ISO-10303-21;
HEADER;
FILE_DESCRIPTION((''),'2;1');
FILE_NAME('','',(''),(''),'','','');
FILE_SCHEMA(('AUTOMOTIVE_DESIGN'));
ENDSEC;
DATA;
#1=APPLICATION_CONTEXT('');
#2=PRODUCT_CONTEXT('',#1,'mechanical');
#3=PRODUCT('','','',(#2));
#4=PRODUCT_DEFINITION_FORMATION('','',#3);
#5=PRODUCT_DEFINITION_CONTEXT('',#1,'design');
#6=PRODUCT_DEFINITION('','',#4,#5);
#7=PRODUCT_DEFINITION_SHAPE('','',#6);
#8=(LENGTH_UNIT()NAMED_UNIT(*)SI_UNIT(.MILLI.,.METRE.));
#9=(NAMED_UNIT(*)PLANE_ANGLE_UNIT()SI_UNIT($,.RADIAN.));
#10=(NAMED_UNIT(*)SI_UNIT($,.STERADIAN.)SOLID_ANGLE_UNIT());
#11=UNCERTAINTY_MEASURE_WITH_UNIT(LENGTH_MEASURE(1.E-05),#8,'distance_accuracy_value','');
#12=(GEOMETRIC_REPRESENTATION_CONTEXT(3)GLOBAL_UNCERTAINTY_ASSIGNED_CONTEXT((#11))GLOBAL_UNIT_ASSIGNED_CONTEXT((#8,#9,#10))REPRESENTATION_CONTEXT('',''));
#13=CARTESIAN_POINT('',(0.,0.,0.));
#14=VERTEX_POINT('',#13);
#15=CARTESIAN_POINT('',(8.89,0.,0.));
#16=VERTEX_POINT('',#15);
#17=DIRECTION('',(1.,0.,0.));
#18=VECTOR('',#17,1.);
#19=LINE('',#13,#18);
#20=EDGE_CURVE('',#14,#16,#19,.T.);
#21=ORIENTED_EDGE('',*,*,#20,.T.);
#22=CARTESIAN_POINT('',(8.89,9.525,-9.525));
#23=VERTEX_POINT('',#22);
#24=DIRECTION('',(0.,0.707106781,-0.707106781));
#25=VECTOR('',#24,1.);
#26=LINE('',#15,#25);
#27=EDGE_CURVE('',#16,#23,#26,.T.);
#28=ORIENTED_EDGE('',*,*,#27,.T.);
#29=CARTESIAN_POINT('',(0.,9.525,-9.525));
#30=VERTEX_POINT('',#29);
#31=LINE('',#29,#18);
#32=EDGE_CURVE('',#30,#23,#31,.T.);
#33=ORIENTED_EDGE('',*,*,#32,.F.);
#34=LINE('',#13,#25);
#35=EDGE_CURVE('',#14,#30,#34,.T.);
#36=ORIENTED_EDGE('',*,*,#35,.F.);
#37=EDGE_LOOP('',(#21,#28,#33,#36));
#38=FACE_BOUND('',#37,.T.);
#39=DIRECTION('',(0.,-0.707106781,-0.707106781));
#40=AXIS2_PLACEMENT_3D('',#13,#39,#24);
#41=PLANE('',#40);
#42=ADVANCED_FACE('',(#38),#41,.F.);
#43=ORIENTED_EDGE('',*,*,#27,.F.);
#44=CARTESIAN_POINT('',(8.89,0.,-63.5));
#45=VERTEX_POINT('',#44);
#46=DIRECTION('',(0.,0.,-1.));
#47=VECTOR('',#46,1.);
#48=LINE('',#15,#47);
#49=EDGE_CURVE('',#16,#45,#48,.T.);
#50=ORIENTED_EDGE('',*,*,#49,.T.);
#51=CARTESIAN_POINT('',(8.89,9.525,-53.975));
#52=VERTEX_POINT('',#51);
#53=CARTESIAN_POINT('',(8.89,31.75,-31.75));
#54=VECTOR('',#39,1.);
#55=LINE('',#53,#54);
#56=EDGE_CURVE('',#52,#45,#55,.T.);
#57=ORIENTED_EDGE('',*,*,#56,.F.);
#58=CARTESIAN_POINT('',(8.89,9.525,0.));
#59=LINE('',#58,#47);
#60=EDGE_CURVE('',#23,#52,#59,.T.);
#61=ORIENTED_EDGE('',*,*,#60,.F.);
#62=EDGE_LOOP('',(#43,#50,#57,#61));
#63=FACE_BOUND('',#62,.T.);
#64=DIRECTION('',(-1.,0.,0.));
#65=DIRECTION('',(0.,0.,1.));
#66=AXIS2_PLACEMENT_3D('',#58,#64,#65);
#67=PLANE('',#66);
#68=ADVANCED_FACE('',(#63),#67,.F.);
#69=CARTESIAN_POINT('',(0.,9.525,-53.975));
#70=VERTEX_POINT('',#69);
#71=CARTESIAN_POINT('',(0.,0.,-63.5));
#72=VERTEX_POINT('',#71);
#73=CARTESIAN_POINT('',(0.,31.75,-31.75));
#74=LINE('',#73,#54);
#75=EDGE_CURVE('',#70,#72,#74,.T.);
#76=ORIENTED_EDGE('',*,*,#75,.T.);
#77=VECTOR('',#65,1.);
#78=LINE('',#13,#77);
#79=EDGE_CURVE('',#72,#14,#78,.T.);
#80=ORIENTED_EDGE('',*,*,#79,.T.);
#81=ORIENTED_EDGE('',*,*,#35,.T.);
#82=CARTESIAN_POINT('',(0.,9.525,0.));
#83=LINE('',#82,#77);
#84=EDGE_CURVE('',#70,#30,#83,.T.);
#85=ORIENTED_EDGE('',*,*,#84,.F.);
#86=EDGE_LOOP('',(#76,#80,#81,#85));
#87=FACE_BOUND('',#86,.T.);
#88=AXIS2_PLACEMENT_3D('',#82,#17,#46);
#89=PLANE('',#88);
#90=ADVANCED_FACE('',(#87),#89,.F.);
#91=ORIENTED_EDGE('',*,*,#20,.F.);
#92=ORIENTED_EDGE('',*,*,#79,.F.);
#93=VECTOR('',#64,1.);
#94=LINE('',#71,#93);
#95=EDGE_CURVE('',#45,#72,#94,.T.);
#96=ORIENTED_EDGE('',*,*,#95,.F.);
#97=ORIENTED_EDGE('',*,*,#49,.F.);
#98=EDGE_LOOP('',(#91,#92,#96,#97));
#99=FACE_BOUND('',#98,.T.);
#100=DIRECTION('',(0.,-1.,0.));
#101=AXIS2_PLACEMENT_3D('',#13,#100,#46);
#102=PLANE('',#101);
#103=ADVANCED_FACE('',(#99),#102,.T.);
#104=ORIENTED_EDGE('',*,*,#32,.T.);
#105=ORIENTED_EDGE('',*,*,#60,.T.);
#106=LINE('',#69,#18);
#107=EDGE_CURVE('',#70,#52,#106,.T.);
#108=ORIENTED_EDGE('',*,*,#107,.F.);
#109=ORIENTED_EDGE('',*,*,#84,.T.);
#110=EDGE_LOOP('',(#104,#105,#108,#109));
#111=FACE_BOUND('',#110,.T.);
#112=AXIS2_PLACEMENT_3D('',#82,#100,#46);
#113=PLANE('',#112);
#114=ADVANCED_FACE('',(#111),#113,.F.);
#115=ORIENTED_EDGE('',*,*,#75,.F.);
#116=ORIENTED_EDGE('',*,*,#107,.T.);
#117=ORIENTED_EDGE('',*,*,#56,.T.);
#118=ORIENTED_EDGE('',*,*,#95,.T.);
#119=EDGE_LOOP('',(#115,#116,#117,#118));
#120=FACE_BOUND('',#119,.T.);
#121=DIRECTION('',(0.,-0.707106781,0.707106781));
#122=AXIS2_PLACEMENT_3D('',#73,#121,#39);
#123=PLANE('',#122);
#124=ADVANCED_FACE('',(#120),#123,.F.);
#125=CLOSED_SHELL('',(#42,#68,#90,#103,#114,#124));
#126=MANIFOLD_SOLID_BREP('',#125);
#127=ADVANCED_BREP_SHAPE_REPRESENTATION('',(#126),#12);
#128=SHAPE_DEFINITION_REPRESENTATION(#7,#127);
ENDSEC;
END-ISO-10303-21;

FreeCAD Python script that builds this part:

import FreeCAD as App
import Part
import Sketcher

V = App.Vector
Q = App.Units.Quantity


def add_polygon(sketch, points):
    """Adds a closed chain of lines whose ends are joined by coincident constraints."""
    first, n = sketch.GeometryCount, len(points)
    for a, b in zip(points, points[1:] + points[:1]):
        sketch.addGeometry(Part.LineSegment(App.Vector(*a, 0), App.Vector(*b, 0)), False)
    for i in range(n):
        sketch.addConstraint(Sketcher.Constraint("Coincident", first + i, 2, first + (i + 1) % n, 1))

doc = App.newDocument("Part")
body = doc.addObject("PartDesign::Body", "Body")

sketch1 = doc.addObject("Sketcher::SketchObject", "Sketch")
body.addObject(sketch1)
sketch1.AttachmentSupport = (doc.XZ_Plane, [""])
sketch1.MapMode = "FlatFace"
add_polygon(sketch1, [(0, -63.5), (0, 0), (8.89, 0), (8.89, -63.5)])
sketch1.addConstraint(Sketcher.Constraint("Vertical", 0))
sketch1.addConstraint(Sketcher.Constraint("Horizontal", 1))
sketch1.addConstraint(Sketcher.Constraint("Vertical", 2))
sketch1.addConstraint(Sketcher.Constraint("Horizontal", 3))
sketch1.addConstraint(Sketcher.Constraint("Coincident", 0, 2, -1, 1))
sketch1.addConstraint(Sketcher.Constraint("DistanceY", 0, 1, 0, 2, Q("2.5 in")))
sketch1.addConstraint(Sketcher.Constraint("DistanceX", 1, 1, 1, 2, Q("0.35 in")))
pad1 = doc.addObject("PartDesign::Pad", "Pad")
body.addObject(pad1)
pad1.Profile = sketch1
pad1.Length = Q("0.375 in")
pad1.Reversed = True

sketch2 = doc.addObject("Sketcher::SketchObject", "Sketch001")
body.addObject(sketch2)
sketch2.AttachmentSupport = (doc.YZ_Plane, [""])
sketch2.MapMode = "FlatFace"
sketch2.AttachmentOffset = App.Placement(V(0, 0, 0.35 * 25.4), App.Rotation())
add_polygon(sketch2, [(9.525, 0), (0, 0), (9.525, -9.525)])
add_polygon(sketch2, [(9.525, -63.5), (9.525, -53.975), (0, -63.5)])
sketch2.addConstraint(Sketcher.Constraint("Horizontal", 0))
sketch2.addConstraint(Sketcher.Constraint("Vertical", 2))
sketch2.addConstraint(Sketcher.Constraint("Vertical", 3))
sketch2.addConstraint(Sketcher.Constraint("Horizontal", 5))
sketch2.addConstraint(Sketcher.Constraint("Coincident", 0, 2, -1, 1))
sketch2.addConstraint(Sketcher.Constraint("PointOnObject", 4, 2, -2))
sketch2.addConstraint(Sketcher.Constraint("Perpendicular", 1, 4))
sketch2.addConstraint(Sketcher.Constraint("Vertical", 2, 2, 3, 2))
sketch2.addConstraint(Sketcher.Constraint("Equal", 5, 2))
sketch2.addConstraint(Sketcher.Constraint("DistanceY", 4, 2, -1, 1, Q("2.5 in")))
sketch2.addConstraint(Sketcher.Constraint("DistanceX", 0, 2, 0, 1, Q("0.375 in")))
pocket1 = doc.addObject("PartDesign::Pocket", "Pocket")
body.addObject(pocket1)
pocket1.Profile = sketch2
pocket1.Type = "ThroughAll"

doc.recompute()
